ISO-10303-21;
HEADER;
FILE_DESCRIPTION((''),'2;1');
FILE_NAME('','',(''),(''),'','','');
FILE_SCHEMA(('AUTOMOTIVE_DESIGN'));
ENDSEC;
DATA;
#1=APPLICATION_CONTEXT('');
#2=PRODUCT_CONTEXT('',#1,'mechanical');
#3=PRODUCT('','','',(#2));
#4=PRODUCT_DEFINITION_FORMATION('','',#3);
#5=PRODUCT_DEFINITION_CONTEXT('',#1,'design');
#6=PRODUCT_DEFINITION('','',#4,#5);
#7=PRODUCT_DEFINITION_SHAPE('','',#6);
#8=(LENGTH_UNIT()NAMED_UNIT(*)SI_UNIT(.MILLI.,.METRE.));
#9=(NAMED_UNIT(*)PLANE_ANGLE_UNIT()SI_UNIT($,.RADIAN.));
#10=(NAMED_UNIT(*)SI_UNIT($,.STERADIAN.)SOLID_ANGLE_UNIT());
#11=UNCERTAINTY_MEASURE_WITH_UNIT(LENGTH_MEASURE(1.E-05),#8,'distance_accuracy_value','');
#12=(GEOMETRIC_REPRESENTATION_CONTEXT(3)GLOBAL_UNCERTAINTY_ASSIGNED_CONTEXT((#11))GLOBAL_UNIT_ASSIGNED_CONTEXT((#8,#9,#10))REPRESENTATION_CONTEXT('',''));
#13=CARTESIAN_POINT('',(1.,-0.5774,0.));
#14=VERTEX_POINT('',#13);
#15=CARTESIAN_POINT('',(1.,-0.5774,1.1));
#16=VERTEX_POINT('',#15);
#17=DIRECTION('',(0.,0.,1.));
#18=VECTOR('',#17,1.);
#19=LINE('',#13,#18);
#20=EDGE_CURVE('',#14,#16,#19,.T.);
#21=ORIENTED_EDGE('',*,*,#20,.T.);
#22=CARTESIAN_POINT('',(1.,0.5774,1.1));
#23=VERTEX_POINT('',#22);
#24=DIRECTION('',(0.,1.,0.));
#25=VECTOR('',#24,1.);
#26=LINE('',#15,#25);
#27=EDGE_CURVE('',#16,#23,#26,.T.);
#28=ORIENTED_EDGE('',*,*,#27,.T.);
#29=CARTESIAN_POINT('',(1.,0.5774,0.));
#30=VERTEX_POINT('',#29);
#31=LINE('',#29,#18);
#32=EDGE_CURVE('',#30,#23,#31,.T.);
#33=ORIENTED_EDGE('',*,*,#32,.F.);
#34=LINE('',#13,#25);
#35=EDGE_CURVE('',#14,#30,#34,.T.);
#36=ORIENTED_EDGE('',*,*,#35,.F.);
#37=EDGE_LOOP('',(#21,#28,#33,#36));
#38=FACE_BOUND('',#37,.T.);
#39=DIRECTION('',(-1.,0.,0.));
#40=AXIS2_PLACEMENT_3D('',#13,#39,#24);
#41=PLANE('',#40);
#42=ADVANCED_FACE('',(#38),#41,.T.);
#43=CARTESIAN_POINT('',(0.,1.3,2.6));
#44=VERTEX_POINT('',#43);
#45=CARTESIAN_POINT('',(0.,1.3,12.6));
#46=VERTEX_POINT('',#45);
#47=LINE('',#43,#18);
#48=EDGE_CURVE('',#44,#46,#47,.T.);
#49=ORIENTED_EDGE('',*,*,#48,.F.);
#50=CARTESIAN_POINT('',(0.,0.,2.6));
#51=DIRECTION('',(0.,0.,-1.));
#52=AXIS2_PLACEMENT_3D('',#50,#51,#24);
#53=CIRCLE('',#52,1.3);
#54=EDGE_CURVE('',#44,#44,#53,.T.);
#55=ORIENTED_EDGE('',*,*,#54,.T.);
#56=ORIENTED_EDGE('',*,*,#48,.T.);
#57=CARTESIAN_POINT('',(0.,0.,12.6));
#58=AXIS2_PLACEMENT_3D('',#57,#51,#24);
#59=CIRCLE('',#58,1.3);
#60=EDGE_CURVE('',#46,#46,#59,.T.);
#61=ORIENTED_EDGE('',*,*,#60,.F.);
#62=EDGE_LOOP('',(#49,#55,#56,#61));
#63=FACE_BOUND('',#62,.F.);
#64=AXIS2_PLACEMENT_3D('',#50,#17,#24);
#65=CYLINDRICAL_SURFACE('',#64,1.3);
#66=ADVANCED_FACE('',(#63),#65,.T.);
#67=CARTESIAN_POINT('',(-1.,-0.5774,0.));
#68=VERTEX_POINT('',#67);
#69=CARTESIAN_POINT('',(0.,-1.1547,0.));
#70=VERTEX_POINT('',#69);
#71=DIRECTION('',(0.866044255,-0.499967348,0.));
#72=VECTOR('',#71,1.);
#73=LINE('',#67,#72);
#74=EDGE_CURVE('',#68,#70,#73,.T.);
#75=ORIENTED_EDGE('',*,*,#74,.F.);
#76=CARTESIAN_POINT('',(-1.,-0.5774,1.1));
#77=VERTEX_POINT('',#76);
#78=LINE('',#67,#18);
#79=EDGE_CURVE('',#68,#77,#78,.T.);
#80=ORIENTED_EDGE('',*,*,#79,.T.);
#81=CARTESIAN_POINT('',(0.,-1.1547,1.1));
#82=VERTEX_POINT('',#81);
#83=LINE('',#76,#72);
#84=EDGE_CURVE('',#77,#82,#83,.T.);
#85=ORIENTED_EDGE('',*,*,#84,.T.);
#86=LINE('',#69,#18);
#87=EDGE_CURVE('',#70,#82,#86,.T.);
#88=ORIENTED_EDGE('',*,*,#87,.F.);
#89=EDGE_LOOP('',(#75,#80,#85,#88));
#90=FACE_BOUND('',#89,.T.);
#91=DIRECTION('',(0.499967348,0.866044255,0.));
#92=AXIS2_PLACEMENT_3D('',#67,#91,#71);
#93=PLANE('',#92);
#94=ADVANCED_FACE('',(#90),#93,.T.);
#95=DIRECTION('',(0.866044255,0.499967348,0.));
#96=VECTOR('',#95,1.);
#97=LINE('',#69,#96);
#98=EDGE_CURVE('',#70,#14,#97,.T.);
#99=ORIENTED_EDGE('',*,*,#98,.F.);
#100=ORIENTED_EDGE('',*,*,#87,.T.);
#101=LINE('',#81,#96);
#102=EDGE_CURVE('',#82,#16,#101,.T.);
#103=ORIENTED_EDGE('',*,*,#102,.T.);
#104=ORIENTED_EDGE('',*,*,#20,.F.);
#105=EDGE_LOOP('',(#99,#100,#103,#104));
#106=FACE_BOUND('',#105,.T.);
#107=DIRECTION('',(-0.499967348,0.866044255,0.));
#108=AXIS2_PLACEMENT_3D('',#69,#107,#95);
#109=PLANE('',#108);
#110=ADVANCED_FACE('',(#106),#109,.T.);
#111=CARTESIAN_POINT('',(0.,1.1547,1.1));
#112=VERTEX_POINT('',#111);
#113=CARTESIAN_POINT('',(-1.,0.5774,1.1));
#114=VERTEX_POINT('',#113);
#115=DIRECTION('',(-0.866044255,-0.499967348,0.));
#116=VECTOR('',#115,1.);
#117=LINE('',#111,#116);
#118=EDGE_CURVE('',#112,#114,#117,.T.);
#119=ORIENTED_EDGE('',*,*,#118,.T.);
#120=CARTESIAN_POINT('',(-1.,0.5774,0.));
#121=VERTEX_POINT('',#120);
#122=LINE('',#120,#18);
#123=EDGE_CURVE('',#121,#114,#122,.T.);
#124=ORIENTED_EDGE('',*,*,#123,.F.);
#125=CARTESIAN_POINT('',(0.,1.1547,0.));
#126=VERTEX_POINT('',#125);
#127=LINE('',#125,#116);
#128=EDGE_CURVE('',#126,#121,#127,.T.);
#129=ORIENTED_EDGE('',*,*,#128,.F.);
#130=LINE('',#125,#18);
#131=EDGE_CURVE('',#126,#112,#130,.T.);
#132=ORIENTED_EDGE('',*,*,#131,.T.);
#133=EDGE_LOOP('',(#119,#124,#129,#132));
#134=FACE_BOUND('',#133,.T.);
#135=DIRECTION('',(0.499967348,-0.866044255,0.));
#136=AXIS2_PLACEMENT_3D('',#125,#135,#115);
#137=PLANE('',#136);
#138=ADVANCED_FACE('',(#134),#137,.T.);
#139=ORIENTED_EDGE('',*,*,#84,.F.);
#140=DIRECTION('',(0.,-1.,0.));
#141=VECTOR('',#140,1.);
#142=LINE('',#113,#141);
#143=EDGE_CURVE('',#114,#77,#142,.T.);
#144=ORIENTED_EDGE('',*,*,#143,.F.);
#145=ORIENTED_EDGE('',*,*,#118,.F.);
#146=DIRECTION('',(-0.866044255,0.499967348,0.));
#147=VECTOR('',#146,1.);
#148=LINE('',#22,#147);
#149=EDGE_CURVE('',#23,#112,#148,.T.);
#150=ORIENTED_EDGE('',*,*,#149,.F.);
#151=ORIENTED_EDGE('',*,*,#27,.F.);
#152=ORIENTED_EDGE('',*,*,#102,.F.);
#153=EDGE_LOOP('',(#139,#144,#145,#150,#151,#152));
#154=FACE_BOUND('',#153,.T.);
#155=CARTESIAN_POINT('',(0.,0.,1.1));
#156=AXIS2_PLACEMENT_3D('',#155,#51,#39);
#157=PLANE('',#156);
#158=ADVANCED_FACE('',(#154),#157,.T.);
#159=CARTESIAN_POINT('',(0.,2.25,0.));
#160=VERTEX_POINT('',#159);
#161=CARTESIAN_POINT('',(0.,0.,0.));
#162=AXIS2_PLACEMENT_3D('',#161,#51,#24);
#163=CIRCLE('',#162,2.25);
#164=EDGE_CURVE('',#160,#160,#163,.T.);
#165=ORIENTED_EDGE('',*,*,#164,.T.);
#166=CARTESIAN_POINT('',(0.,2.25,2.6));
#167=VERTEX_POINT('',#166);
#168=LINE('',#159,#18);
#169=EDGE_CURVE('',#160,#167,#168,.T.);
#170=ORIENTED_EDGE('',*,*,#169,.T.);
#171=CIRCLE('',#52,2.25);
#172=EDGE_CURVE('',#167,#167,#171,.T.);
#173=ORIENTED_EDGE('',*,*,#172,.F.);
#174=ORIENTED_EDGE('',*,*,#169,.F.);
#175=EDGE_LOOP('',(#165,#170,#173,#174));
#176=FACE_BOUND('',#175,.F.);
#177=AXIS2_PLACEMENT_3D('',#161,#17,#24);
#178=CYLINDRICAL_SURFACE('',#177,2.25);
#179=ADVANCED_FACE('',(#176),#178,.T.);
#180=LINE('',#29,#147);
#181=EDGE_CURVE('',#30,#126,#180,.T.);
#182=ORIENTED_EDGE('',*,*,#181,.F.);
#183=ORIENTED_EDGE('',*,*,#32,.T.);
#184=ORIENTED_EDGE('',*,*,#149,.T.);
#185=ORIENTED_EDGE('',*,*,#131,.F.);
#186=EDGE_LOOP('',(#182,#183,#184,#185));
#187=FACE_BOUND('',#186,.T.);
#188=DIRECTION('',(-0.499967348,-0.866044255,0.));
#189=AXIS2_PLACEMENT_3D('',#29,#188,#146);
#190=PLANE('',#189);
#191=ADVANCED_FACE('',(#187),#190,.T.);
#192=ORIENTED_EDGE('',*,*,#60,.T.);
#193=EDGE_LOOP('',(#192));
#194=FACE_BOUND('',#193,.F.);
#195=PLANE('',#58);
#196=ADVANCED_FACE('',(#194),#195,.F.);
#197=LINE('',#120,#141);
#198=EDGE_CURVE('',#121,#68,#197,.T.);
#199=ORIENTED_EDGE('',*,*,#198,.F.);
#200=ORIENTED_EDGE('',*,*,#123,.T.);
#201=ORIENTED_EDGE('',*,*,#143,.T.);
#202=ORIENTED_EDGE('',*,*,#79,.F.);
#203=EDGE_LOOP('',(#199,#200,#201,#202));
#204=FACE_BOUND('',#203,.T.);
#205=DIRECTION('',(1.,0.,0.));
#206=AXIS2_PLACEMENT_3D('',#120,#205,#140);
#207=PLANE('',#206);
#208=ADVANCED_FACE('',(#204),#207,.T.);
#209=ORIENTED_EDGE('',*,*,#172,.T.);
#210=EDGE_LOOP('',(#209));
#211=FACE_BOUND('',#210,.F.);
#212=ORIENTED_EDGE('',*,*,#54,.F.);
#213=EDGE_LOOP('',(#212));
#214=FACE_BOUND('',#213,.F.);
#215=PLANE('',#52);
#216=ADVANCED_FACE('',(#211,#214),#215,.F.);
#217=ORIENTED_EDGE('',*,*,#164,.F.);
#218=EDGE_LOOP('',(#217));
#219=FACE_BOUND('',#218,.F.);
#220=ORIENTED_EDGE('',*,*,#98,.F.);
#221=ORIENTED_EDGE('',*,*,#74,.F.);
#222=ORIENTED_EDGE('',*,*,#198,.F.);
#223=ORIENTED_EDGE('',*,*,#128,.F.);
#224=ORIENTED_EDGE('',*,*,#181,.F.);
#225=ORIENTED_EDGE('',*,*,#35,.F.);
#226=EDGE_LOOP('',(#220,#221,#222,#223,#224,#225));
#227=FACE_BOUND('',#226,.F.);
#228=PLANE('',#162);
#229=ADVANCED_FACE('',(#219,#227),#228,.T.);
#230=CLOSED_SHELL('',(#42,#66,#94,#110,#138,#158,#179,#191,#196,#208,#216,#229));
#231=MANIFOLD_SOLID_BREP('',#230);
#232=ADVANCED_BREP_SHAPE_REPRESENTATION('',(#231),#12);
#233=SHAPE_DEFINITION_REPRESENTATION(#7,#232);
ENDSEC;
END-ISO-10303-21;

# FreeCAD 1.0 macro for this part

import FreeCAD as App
import Part
import Sketcher

V = App.Vector
Q = App.Units.Quantity


def add_polygon(sketch, points):
    """Adds a closed chain of lines whose ends are joined by coincident constraints."""
    first, n = sketch.GeometryCount, len(points)
    for a, b in zip(points, points[1:] + points[:1]):
        sketch.addGeometry(Part.LineSegment(App.Vector(*a, 0), App.Vector(*b, 0)), False)
    for i in range(n):
        sketch.addConstraint(Sketcher.Constraint("Coincident", first + i, 2, first + (i + 1) % n, 1))

doc = App.newDocument("Part")
body = doc.addObject("PartDesign::Body", "Body")

# Sketch on YZ plane
sketch1 = body.newObject("Sketcher::SketchObject", "Sketch")
sketch1.AttachmentSupport = (doc.getObject("YZ_Plane"), [""])
sketch1.MapMode = "FlatFace"
add_polygon(sketch1, [(1.3, 12.6), (0, 12.6), (0, 0), (2.2, 0), (2.2, 2.6), (1.3, 2.6)])  # lines 0-5
sketch1.addConstraint(Sketcher.Constraint("Horizontal", 0))
sketch1.addConstraint(Sketcher.Constraint("Vertical", 1))
sketch1.addConstraint(Sketcher.Constraint("Horizontal", 2))
sketch1.addConstraint(Sketcher.Constraint("Vertical", 3))
sketch1.addConstraint(Sketcher.Constraint("Horizontal", 4))
sketch1.addConstraint(Sketcher.Constraint("Vertical", 5))
sketch1.addConstraint(Sketcher.Constraint("Coincident", 1, 2, -1, 1))
sketch1.addConstraint(Sketcher.Constraint("DistanceY", 5, 1, 5, 2, Q("10 mm")))
sketch1.addConstraint(Sketcher.Constraint("DistanceY", 3, 1, 3, 2, Q("2.6 mm")))
sketch1.addConstraint(Sketcher.Constraint("DistanceX", 0, 2, 0, 1, Q("1.3 mm")))
sketch1.addConstraint(Sketcher.Constraint("DistanceX", 2, 1, 2, 2, Q("2.25 mm")))
revolution = body.newObject("PartDesign::Revolution", "Revolution")
revolution.Profile = sketch1
revolution.ReferenceAxis = (sketch1, ["V_Axis"])
revolution.Angle = 360

# Sketch on XY plane
sketch2 = body.newObject("Sketcher::SketchObject", "Sketch001")
sketch2.AttachmentSupport = (doc.getObject("XY_Plane"), [""])
sketch2.MapMode = "FlatFace"
add_polygon(sketch2, [(-1, 0.6), (0, 1.2), (1, 0.6), (1, -0.6), (0, -1.2), (-1, -0.6)])  # lines 0-5
sketch2.addConstraint(Sketcher.Constraint("Vertical", 2))
sketch2.addConstraint(Sketcher.Constraint("Vertical", 5))
sketch2.addConstraint(Sketcher.Constraint("Symmetric", 0, 2, 3, 2, -1, 1))
sketch2.addConstraint(Sketcher.Constraint("Symmetric", 1, 2, 4, 2, -1, 1))
sketch2.addConstraint(Sketcher.Constraint("PointOnObject", 0, 2, -2))
sketch2.addConstraint(Sketcher.Constraint("Parallel", 0, 3))
sketch2.addConstraint(Sketcher.Constraint("Horizontal", 2, 2, 4, 2))
sketch2.addConstraint(Sketcher.Constraint("DistanceX", 4, 2, 2, 2, Q("2 mm")))
sketch2.addConstraint(Sketcher.Constraint("DistanceY", 2, 2, 2, 1, Q("1.1548 mm")))
sketch2.addConstraint(Sketcher.Constraint("DistanceY", 2, 2, 0, 2, Q("1.732 mm")))
pocket1 = body.newObject("PartDesign::Pocket", "Pocket")
pocket1.Profile = sketch2
pocket1.Length = 1.1
pocket1.Reversed = True

doc.recompute()
